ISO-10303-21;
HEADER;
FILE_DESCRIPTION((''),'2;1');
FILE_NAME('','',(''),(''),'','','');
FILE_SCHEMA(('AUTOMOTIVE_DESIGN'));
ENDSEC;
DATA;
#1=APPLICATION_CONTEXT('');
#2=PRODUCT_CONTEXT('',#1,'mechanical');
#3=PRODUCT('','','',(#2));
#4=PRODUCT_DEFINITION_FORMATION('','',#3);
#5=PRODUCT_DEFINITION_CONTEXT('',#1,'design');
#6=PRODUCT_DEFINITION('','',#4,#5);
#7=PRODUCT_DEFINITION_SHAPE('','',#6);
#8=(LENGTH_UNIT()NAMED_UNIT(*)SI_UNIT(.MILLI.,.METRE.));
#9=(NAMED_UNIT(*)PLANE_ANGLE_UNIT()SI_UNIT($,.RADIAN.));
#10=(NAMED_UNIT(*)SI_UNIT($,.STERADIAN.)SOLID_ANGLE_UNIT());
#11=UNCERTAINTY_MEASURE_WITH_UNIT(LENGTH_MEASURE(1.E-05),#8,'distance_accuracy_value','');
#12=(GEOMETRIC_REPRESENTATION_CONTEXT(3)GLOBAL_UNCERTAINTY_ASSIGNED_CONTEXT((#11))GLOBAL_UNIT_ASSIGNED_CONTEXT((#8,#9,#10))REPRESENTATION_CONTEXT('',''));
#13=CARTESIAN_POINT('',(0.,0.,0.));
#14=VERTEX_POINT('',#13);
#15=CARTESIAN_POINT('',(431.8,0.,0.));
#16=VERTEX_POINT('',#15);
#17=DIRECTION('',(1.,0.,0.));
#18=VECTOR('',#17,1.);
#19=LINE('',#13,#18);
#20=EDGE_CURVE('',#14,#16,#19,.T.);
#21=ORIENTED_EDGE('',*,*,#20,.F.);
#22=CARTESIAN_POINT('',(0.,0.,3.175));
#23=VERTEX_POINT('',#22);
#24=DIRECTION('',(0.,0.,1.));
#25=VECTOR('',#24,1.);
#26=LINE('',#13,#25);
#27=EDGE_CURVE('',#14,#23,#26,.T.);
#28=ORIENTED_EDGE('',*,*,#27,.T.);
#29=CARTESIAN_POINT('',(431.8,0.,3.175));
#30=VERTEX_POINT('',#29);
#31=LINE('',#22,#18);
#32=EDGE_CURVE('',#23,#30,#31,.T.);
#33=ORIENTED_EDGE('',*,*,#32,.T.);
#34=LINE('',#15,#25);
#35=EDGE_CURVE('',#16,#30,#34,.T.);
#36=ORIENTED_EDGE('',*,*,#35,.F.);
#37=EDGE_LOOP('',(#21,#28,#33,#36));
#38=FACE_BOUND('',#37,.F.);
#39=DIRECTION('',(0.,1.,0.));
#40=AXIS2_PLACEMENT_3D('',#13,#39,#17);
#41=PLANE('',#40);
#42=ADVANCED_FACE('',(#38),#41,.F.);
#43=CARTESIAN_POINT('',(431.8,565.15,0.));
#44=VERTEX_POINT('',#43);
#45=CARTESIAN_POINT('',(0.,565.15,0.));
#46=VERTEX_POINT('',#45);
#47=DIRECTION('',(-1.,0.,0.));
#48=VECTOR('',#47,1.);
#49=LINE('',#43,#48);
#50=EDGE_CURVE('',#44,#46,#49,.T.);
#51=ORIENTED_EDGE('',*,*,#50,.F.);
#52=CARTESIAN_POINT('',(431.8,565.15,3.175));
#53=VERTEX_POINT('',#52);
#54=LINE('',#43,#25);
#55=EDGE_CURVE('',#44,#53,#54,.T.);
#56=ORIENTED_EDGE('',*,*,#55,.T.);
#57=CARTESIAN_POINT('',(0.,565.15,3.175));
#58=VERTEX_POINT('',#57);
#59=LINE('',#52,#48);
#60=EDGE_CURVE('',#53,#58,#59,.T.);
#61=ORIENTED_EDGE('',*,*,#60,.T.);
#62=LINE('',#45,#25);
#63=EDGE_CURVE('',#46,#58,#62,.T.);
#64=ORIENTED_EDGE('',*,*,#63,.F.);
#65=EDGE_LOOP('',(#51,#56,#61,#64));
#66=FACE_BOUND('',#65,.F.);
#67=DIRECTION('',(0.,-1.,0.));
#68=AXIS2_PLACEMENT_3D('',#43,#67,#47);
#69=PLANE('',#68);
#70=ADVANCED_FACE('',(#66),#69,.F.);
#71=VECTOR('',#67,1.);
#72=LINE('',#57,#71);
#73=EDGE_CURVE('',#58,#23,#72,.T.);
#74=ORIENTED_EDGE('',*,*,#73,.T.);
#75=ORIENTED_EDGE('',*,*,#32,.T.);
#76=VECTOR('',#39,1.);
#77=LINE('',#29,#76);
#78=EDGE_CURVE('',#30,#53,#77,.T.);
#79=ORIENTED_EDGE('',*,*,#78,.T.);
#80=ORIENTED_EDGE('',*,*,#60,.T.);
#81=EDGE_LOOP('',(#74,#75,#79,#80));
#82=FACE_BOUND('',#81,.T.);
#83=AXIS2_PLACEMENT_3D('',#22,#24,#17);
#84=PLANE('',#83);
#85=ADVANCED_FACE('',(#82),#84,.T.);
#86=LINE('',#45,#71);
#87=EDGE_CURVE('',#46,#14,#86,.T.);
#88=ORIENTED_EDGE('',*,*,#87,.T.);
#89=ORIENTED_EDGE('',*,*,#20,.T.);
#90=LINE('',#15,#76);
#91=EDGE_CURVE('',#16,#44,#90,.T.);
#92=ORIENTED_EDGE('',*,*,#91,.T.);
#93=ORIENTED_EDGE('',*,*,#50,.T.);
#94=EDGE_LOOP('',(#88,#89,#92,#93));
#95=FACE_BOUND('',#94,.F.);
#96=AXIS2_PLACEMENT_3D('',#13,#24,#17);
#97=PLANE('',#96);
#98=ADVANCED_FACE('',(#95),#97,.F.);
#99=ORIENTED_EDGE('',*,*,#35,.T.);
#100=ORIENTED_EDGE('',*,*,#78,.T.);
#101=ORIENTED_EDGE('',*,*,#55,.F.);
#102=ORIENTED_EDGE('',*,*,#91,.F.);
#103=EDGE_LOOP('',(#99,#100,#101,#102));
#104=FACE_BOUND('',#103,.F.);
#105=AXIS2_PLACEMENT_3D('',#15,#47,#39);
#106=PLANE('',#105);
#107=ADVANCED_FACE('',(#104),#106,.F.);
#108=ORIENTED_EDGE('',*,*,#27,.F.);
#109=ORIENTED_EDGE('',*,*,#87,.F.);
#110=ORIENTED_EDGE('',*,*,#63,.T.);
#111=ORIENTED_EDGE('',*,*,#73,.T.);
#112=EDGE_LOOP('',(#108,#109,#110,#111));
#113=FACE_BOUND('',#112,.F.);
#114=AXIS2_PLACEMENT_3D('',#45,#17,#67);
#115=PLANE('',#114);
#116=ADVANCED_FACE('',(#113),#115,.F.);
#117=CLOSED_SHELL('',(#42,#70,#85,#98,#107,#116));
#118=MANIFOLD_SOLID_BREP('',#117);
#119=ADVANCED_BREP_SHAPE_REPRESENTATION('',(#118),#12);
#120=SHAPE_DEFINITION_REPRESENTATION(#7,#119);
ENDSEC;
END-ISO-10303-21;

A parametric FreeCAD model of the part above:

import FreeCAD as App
import Part
import Sketcher

V = App.Vector
Q = App.Units.Quantity


def add_polygon(sketch, points):
    """Adds a closed chain of lines whose ends are joined by coincident constraints."""
    first, n = sketch.GeometryCount, len(points)
    for a, b in zip(points, points[1:] + points[:1]):
        sketch.addGeometry(Part.LineSegment(App.Vector(*a, 0), App.Vector(*b, 0)), False)
    for i in range(n):
        sketch.addConstraint(Sketcher.Constraint("Coincident", first + i, 2, first + (i + 1) % n, 1))

doc = App.newDocument("Part")
body = doc.addObject("PartDesign::Body", "Body")

# Sketch on XY plane
sketch1 = body.newObject("Sketcher::SketchObject", "Sketch")
sketch1.AttachmentSupport = (doc.getObject("XY_Plane"), [""])
sketch1.MapMode = "FlatFace"
add_polygon(sketch1, [(0, 565), (0, 0), (432, 0), (432, 565)])  # lines 0-3
sketch1.addConstraint([
    Sketcher.Constraint("Vertical", 0),
    Sketcher.Constraint("Horizontal", 1),
    Sketcher.Constraint("Vertical", 2),
    Sketcher.Constraint("Horizontal", 3),
    Sketcher.Constraint("Coincident", 0, 2, -1, 1),
    Sketcher.Constraint("DistanceX", 1, 1, 1, 2, Q("17 in")),
    Sketcher.Constraint("DistanceY", 0, 2, 0, 1, Q("22.25 in")),
])
pad1 = body.newObject("PartDesign::Pad", "Pad")
pad1.Profile = sketch1
pad1.Length = Q("0.125 in")

doc.recompute()
